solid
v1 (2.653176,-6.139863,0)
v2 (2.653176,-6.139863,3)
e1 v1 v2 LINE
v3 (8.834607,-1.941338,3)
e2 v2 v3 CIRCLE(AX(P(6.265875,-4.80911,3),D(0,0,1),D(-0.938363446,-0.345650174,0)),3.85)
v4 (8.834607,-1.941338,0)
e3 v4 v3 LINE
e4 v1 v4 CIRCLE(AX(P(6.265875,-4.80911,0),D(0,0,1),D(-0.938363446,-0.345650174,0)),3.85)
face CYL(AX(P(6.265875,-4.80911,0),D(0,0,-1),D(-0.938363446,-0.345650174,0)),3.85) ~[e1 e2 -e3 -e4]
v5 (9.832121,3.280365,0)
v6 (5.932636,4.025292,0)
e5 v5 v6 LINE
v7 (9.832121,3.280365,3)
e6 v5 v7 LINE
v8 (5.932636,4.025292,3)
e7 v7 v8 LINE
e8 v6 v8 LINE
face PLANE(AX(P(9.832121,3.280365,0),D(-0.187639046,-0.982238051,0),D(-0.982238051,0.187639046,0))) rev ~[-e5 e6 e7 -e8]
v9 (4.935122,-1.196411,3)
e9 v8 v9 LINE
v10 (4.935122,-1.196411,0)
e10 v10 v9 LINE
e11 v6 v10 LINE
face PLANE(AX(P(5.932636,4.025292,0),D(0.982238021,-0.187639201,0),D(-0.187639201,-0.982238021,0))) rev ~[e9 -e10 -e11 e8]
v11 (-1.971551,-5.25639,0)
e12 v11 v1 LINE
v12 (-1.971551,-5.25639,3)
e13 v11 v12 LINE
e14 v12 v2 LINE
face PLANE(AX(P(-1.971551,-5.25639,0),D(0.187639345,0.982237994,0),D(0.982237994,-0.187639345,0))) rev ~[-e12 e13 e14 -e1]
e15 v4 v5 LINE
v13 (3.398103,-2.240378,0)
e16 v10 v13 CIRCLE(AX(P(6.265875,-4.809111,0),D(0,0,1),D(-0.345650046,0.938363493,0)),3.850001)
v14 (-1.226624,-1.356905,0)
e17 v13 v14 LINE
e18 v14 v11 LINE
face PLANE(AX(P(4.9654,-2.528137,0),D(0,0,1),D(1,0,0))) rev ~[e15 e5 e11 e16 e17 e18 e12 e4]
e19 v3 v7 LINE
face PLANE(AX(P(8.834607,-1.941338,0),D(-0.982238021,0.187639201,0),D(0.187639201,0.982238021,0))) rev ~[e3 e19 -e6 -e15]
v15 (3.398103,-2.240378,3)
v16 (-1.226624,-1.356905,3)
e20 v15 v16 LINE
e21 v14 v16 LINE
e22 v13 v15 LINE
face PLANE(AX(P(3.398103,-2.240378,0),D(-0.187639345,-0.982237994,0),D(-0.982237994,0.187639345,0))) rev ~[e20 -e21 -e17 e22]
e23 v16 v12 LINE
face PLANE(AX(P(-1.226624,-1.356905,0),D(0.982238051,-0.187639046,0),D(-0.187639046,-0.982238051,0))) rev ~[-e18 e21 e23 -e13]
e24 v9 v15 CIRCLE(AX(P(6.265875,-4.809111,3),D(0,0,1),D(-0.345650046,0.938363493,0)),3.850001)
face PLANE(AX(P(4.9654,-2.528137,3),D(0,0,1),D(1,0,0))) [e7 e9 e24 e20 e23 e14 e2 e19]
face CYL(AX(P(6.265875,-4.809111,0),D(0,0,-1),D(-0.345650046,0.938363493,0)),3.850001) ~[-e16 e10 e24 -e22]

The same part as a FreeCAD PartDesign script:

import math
import FreeCAD as App
import Part
import Sketcher
Q = App.Units.Quantity

doc = App.newDocument("Part")
params = doc.addObject("Spreadsheet::Sheet", "Params")
for row, (alias, value) in enumerate([
    ("sketch1_radius", "3.85 mm"),
    ("sketch1_length", "3.97 mm"),
    ("pad1_length", "3 mm"),
], start=1):
    params.set(f"A{row}", alias)
    params.set(f"B{row}", "=" + value)
    params.setAlias(f"B{row}", alias)

body = doc.addObject("PartDesign::Body", "Body")

sketch1 = body.newObject("Sketcher::SketchObject", "Sketch")
sketch1.AttachmentSupport = (doc.getObject("XY_Plane"), [""])
sketch1.MapMode = "FlatFace"
sketch1.addGeometry(Part.LineSegment(App.Vector(-1.971551, -5.25639, 0), App.Vector(2.653176, -6.139863, 0)), False)
sketch1.addGeometry(Part.ArcOfCircle(Part.Circle(App.Vector(6.265875, -4.80911, 0), App.Vector(0, 0, 1), 3.85), math.radians(-159.77851), math.radians(48.148436)), False)
sketch1.addGeometry(Part.LineSegment(App.Vector(8.834607, -1.941338, 0), App.Vector(9.832121, 3.280365, 0)), False)
sketch1.addGeometry(Part.LineSegment(App.Vector(9.832121, 3.280365, 0), App.Vector(5.932636, 4.025292, 0)), False)
sketch1.addGeometry(Part.LineSegment(App.Vector(5.932636, 4.025292, 0), App.Vector(4.935122, -1.196411, 0)), False)
sketch1.addGeometry(Part.ArcOfCircle(Part.Circle(App.Vector(6.265875, -4.809111, 0), App.Vector(0, 0, 1), 3.850001), math.radians(110.221482), math.radians(138.148421)), False)
sketch1.addGeometry(Part.LineSegment(App.Vector(3.398103, -2.240378, 0), App.Vector(-1.226624, -1.356905, 0)), False)
sketch1.addGeometry(Part.LineSegment(App.Vector(-1.226624, -1.356905, 0), App.Vector(-1.971551, -5.25639, 0)), False)
sketch1.addConstraint(Sketcher.Constraint("Coincident", 0, 2, 1, 1))
sketch1.addConstraint(Sketcher.Constraint("Coincident", 1, 2, 2, 1))
sketch1.addConstraint(Sketcher.Constraint("Coincident", 2, 2, 3, 1))
sketch1.addConstraint(Sketcher.Constraint("Coincident", 3, 2, 4, 1))
sketch1.addConstraint(Sketcher.Constraint("Coincident", 4, 2, 5, 1))
sketch1.addConstraint(Sketcher.Constraint("Coincident", 5, 2, 6, 1))
sketch1.addConstraint(Sketcher.Constraint("Coincident", 6, 2, 7, 1))
sketch1.addConstraint(Sketcher.Constraint("Coincident", 7, 2, 0, 1))
sketch1.addConstraint(Sketcher.Constraint("Coincident", 5, 3, 1, 3))
sketch1.addConstraint(Sketcher.Constraint("Equal", 1, 5))
sketch1.addConstraint(Sketcher.Constraint("Perpendicular", 0, 2))
sketch1.addConstraint(Sketcher.Constraint("Perpendicular", 2, 3))
sketch1.addConstraint(Sketcher.Constraint("Perpendicular", 3, 4))
sketch1.addConstraint(Sketcher.Constraint("Perpendicular", 4, 6))
sketch1.addConstraint(Sketcher.Constraint("Perpendicular", 6, 7))
sketch1.addConstraint(Sketcher.Constraint("Equal", 2, 4))
sketch1.addConstraint(Sketcher.Constraint("Equal", 0, 6))
sketch1.addConstraint(Sketcher.Constraint("Equal", 3, 7))
sketch1.addConstraint(Sketcher.Constraint("Radius", 1, Q("3.85 mm")))
sketch1.addConstraint(Sketcher.Constraint("Distance", 3, Q("3.97 mm")))
sketch1.addConstraint(Sketcher.Constraint("DistanceX", 0, 2, 5, 3, Q("3.612699 mm")))
sketch1.addConstraint(Sketcher.Constraint("DistanceY", 1, 3, 3, 2, Q("8.834402 mm")))
sketch1.addConstraint(Sketcher.Constraint("DistanceX", 6, 2, 0, 2, Q("3.8798 mm")))
sketch1.addConstraint(Sketcher.Constraint("DistanceY", 1, 3, -1, 1, Q("4.80911 mm")))
sketch1.addConstraint(Sketcher.Constraint("DistanceX", -1, 1, 2, 2, Q("9.832121 mm")))
sketch1.setExpression("Constraints[18]", "Params.sketch1_radius")
sketch1.setExpression("Constraints[19]", "Params.sketch1_length")
pad1 = body.newObject("PartDesign::Pad", "Pad")
pad1.Profile = sketch1
pad1.setExpression("Length", "Params.pad1_length")

doc.recompute()
